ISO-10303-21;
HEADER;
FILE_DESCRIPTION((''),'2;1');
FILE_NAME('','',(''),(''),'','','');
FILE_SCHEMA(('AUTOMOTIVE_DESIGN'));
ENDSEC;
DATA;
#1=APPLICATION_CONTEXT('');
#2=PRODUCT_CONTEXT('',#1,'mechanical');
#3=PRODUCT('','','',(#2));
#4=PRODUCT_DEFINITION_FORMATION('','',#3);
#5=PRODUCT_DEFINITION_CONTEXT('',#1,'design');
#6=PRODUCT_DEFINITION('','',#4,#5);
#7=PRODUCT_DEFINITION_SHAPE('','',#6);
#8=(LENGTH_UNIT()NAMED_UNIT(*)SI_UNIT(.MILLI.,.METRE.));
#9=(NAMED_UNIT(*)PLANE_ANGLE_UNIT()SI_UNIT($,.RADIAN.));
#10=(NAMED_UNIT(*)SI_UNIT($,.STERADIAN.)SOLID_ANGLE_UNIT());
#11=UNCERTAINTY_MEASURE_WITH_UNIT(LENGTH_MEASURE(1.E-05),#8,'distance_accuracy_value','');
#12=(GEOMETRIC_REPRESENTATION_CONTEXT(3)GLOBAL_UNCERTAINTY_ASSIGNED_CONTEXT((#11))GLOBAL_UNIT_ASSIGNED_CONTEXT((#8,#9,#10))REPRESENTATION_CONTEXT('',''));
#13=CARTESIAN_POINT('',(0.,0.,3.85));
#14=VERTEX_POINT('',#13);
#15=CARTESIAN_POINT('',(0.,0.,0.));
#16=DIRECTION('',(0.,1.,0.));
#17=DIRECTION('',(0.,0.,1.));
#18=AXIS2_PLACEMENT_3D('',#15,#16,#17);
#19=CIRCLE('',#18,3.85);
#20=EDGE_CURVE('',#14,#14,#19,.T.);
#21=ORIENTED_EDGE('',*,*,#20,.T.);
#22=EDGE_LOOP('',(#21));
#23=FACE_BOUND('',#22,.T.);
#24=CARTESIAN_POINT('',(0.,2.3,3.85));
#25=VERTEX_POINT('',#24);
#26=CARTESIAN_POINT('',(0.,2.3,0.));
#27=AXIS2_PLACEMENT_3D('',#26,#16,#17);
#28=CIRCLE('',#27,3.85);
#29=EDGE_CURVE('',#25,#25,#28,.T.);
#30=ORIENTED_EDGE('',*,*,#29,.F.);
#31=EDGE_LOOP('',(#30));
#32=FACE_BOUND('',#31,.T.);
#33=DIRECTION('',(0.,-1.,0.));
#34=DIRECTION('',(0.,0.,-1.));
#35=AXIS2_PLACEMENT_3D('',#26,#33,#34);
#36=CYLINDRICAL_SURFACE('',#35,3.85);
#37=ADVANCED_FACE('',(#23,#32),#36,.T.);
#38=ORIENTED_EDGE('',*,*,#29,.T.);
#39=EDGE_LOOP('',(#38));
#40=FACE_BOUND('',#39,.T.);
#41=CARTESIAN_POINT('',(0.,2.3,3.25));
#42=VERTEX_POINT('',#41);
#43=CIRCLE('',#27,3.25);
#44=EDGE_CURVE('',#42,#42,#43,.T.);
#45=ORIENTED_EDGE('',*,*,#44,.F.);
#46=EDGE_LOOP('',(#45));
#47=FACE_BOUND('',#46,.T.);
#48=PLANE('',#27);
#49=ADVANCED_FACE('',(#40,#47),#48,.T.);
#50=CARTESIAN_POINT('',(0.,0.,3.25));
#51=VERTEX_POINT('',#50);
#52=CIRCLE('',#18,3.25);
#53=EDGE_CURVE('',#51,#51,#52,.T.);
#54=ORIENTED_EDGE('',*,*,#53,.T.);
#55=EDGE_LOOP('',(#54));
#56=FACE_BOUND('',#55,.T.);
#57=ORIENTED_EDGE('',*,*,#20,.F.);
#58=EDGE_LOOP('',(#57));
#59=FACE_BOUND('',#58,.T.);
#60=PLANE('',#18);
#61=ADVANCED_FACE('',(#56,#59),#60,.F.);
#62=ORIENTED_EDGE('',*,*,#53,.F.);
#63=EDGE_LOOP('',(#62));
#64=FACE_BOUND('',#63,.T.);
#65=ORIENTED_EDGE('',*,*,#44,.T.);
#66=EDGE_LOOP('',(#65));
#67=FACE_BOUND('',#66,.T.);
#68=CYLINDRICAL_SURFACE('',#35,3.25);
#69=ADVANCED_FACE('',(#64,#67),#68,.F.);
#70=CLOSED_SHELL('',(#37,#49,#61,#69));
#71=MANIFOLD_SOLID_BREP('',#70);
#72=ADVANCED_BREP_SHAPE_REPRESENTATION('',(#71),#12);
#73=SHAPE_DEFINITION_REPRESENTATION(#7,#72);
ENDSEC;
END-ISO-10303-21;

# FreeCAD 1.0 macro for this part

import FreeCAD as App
import Part
import Sketcher

V = App.Vector
Q = App.Units.Quantity

doc = App.newDocument("Part")
params = doc.addObject("Spreadsheet::Sheet", "Params")
for row, (alias, value) in enumerate([
    ("sketch1_diameter", "7.7 mm"),
    ("sketch1_diameter2", "6.5 mm"),
    ("pad1_length", "2.3 mm"),
], start=1):
    params.set(f"A{row}", alias)
    params.set(f"B{row}", "=" + value)
    params.setAlias(f"B{row}", alias)

body = doc.addObject("PartDesign::Body", "Body")

sketch1 = body.newObject("Sketcher::SketchObject", "Sketch")
sketch1.AttachmentSupport = (doc.getObject("XZ_Plane"), [""])
sketch1.MapMode = "FlatFace"
sketch1.addGeometry([
    Part.Circle(V(0, 0, 0), V(0, 0, 1), 3.85),
    Part.Circle(V(0, 0, 0), V(0, 0, 1), 3.25),
], False)
sketch1.addConstraint([
    Sketcher.Constraint("Coincident", 0, 3, -1, 1),
    Sketcher.Constraint("Coincident", 1, 3, -1, 1),
    Sketcher.Constraint("Diameter", 0, Q("7.7 mm")),
    Sketcher.Constraint("Diameter", 1, Q("6.5 mm")),
])
sketch1.setExpression("Constraints[2]", "Params.sketch1_diameter")
sketch1.setExpression("Constraints[3]", "Params.sketch1_diameter2")
pad1 = body.newObject("PartDesign::Pad", "Pad")
pad1.Profile = sketch1
pad1.setExpression("Length", "Params.pad1_length")
pad1.Reversed = True

doc.recompute()
